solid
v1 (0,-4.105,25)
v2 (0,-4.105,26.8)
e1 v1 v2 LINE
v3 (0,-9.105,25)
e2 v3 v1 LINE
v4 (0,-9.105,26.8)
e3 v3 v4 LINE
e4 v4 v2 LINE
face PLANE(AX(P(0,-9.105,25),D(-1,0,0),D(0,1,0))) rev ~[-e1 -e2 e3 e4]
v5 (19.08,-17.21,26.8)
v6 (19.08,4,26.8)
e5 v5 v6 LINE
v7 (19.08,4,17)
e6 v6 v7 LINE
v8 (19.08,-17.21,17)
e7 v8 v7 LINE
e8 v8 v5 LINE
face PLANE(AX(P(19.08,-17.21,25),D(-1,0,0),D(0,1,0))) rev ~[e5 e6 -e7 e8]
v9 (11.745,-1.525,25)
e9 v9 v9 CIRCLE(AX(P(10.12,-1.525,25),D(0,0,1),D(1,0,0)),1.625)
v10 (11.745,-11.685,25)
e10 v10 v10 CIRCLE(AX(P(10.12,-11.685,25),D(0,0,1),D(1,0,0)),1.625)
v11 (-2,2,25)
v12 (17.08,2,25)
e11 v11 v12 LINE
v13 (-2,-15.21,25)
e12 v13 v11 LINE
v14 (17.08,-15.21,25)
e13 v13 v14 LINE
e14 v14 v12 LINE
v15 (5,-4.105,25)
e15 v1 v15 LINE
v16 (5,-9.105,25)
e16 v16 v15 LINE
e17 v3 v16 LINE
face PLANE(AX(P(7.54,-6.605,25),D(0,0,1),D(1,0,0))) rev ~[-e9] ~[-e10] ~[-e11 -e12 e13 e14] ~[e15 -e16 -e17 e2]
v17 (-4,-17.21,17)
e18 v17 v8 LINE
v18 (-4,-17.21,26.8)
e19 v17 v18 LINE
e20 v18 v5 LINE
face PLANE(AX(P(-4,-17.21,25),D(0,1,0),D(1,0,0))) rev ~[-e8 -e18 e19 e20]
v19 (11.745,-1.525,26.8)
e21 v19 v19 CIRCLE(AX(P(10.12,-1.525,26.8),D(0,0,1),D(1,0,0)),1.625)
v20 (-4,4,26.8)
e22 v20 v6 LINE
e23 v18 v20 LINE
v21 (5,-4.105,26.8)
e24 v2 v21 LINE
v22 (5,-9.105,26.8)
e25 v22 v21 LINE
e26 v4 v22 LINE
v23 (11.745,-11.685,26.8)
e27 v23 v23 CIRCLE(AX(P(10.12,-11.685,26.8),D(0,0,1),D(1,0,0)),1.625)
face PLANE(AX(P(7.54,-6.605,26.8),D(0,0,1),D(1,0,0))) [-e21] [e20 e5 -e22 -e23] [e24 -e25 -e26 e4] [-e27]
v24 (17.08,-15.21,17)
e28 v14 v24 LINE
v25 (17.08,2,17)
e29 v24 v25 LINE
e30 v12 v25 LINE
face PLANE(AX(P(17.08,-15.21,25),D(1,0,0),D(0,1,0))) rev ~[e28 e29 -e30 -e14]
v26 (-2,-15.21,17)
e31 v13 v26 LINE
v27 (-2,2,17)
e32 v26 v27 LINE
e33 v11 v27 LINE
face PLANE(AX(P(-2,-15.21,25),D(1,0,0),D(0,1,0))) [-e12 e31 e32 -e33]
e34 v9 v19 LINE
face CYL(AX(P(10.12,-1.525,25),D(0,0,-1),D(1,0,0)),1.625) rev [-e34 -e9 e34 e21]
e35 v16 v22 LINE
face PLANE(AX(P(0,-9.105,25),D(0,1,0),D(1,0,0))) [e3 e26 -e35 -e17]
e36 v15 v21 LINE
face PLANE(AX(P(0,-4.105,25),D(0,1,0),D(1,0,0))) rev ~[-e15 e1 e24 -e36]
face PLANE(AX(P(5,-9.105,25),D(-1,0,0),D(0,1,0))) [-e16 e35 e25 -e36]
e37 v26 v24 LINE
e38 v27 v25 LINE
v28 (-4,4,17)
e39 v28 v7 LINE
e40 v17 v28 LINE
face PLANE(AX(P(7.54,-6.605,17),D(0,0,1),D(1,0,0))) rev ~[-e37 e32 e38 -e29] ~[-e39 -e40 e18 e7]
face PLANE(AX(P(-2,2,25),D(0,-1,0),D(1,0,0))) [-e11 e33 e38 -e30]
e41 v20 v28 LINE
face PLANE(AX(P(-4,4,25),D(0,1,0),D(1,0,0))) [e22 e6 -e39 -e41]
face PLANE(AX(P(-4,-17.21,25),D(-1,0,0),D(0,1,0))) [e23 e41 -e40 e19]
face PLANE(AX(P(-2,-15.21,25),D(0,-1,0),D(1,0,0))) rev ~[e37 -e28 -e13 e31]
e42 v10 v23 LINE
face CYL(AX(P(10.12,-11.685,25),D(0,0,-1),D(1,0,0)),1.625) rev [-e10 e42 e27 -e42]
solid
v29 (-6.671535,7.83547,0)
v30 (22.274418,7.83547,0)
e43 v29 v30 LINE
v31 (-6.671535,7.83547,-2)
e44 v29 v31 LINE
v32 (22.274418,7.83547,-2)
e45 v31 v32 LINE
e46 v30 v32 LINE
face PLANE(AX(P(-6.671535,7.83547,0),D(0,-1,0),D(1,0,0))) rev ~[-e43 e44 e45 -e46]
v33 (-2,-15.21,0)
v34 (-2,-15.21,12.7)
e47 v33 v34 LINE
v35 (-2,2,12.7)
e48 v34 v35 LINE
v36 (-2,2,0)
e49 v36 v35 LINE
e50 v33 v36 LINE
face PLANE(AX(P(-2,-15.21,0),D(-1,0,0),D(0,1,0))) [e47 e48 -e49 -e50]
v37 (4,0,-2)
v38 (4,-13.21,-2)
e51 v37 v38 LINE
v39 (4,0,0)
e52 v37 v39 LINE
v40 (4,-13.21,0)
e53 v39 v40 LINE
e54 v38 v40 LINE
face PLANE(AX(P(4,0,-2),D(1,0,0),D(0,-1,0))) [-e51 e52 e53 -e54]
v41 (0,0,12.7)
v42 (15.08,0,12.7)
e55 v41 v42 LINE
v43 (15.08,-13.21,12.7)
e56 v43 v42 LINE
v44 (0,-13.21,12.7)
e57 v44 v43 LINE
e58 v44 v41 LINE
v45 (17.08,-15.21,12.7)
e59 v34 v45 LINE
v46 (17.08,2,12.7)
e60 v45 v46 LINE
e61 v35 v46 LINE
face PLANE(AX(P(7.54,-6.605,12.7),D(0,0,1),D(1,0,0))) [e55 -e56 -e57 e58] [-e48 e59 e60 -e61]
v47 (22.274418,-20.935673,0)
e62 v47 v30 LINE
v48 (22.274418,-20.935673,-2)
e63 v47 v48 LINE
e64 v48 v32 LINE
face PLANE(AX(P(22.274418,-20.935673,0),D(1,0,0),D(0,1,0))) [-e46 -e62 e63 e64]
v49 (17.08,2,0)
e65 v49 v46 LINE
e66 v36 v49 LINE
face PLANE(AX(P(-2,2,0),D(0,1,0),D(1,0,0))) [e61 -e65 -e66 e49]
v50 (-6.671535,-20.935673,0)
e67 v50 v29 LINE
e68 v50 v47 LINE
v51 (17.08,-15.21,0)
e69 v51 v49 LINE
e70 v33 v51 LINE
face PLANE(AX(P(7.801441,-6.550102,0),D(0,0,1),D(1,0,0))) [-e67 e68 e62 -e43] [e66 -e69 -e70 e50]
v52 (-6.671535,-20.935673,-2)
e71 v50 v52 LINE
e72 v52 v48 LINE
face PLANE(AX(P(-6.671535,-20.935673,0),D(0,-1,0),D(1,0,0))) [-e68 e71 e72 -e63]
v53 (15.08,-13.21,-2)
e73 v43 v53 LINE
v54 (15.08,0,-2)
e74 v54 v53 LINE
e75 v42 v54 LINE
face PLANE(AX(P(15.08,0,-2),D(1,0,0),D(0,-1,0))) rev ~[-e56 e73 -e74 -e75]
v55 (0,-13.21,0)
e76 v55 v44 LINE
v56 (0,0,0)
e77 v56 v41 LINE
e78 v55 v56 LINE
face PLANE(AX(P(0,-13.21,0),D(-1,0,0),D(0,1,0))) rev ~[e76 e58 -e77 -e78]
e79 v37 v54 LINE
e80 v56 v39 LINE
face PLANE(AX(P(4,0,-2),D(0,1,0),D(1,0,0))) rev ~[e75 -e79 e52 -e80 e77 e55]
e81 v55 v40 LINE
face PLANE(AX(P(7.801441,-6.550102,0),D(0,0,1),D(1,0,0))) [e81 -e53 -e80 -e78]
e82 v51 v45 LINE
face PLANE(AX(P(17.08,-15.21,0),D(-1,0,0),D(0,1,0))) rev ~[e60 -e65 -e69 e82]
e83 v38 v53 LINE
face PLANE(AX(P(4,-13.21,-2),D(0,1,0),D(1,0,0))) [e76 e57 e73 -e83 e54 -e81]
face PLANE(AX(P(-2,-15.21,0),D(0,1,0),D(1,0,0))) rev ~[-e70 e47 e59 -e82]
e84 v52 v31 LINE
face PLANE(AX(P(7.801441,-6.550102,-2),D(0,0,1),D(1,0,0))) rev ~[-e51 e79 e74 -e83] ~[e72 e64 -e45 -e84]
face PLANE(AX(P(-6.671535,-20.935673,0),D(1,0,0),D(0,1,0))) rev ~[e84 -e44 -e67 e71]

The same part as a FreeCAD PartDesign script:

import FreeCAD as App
import Part
import Sketcher

V = App.Vector


def add_polygon(sketch, points):
    """Adds a closed chain of lines whose ends are joined by coincident constraints."""
    first, n = sketch.GeometryCount, len(points)
    for a, b in zip(points, points[1:] + points[:1]):
        sketch.addGeometry(Part.LineSegment(App.Vector(*a, 0), App.Vector(*b, 0)), False)
    for i in range(n):
        sketch.addConstraint(Sketcher.Constraint("Coincident", first + i, 2, first + (i + 1) % n, 1))

doc = App.newDocument("Part")
body = doc.addObject("PartDesign::Body", "Body")

sketch1 = doc.addObject("Sketcher::SketchObject", "Sketch")
body.addObject(sketch1)
sketch1.AttachmentSupport = (doc.XY_Plane, [""])
sketch1.MapMode = "FlatFace"
add_polygon(sketch1, [(-2, 2), (-2, -15.21), (17.08, -15.21), (17.08, 2)])
add_polygon(sketch1, [(15.08, -13.21), (0, -13.21), (0, 0), (15.08, 0)])
sketch1.addConstraint([
    Sketcher.Constraint("Vertical", 0),
    Sketcher.Constraint("Horizontal", 1),
    Sketcher.Constraint("Vertical", 2),
    Sketcher.Constraint("Horizontal", 3),
    Sketcher.Constraint("Horizontal", 4),
    Sketcher.Constraint("Vertical", 5),
    Sketcher.Constraint("Horizontal", 6),
    Sketcher.Constraint("Vertical", 7),
    Sketcher.Constraint("Coincident", 5, 2, -1, 1),
    Sketcher.Constraint("DistanceX", 0, 2, -1, 1, 2.0),
    Sketcher.Constraint("DistanceY", -1, 1, 2, 2, 2.0),
    Sketcher.Constraint("DistanceY", 0, 2, 4, 2, 2.0),
    Sketcher.Constraint("DistanceX", 6, 2, 2, 2, 2.0),
    Sketcher.Constraint("DistanceX", 1, 1, 1, 2, 19.08),
    Sketcher.Constraint("DistanceY", 0, 2, 0, 1, 17.21),
])
pad1 = doc.addObject("PartDesign::Pad", "Pad")
body.addObject(pad1)
pad1.Profile = sketch1
pad1.Length = 12.7

sketch2 = doc.addObject("Sketcher::SketchObject", "Sketch001")
body.addObject(sketch2)
sketch2.AttachmentSupport = (doc.XY_Plane, [""])
sketch2.MapMode = "FlatFace"
add_polygon(sketch2, [(-6.671535, 7.83547), (-6.671535, -20.935673), (22.274418, -20.935673), (22.274418, 7.83547)])
sketch2.addConstraint([
    Sketcher.Constraint("Vertical", 0),
    Sketcher.Constraint("Horizontal", 1),
    Sketcher.Constraint("Vertical", 2),
    Sketcher.Constraint("Horizontal", 3),
    Sketcher.Constraint("DistanceX", 1, 1, 1, 2, 28.945953),
    Sketcher.Constraint("DistanceY", 0, 2, 0, 1, 28.771143),
    Sketcher.Constraint("DistanceY", -1, 1, 2, 2, 7.83547),
    Sketcher.Constraint("DistanceX", 0, 2, -1, 1, 6.671535),
])
pad2 = doc.addObject("PartDesign::Pad", "Pad001")
body.addObject(pad2)
pad2.Profile = sketch2
pad2.Length = 2
pad2.Reversed = True

sketch3 = doc.addObject("Sketcher::SketchObject", "Sketch002")
body.addObject(sketch3)
sketch3.AttachmentSupport = (doc.XY_Plane, [""])
sketch3.MapMode = "FlatFace"
sketch3.AttachmentOffset = App.Placement(V(0, 0, -2), App.Rotation())
add_polygon(sketch3, [(4, -13.21), (4, 0), (15.08, 0), (15.08, -13.21)])
sketch3.addConstraint([
    Sketcher.Constraint("Vertical", 0),
    Sketcher.Constraint("Horizontal", 1),
    Sketcher.Constraint("Vertical", 2),
    Sketcher.Constraint("Horizontal", 3),
    Sketcher.Constraint("PointOnObject", 0, 2, -1),
    Sketcher.Constraint("DistanceX", -1, 1, 0, 2, 4.0),
    Sketcher.Constraint("DistanceX", 1, 1, 1, 2, 11.08),
    Sketcher.Constraint("DistanceY", 0, 1, 0, 2, 13.21),
])
pocket1 = doc.addObject("PartDesign::Pocket", "Pocket")
body.addObject(pocket1)
pocket1.Profile = sketch3
pocket1.Type = "ThroughAll"
pocket1.Reversed = True
body2 = doc.addObject("PartDesign::Body", "Body001")

sketch4 = doc.addObject("Sketcher::SketchObject", "Sketch003")
body2.addObject(sketch4)
sketch4.AttachmentSupport = (doc.getObject("XY_Plane001"), [""])
sketch4.MapMode = "FlatFace"
sketch4.AttachmentOffset = App.Placement(V(0, 0, 25), App.Rotation())
add_polygon(sketch4, [(-4, 4), (-4, -17.21), (19.08, -17.21), (19.08, 4)])
add_polygon(sketch4, [(17.08, -15.21), (-2, -15.21), (-2, 2), (17.08, 2)])
sketch4.addConstraint([
    Sketcher.Constraint("Vertical", 0),
    Sketcher.Constraint("Horizontal", 1),
    Sketcher.Constraint("Vertical", 2),
    Sketcher.Constraint("Horizontal", 3),
    Sketcher.Constraint("Horizontal", 4),
    Sketcher.Constraint("Vertical", 5),
    Sketcher.Constraint("Horizontal", 6),
    Sketcher.Constraint("Vertical", 7),
    Sketcher.Constraint("DistanceX", 0, 2, -1, 1, 4.0),
    Sketcher.Constraint("DistanceY", -1, 1, 2, 2, 4.0),
    Sketcher.Constraint("DistanceX", 4, 2, -1, 1, 2.0),
    Sketcher.Constraint("DistanceY", -1, 1, 5, 2, 2.0),
    Sketcher.Constraint("DistanceY", 0, 2, 4, 2, 2.0),
    Sketcher.Constraint("DistanceX", 6, 2, 2, 2, 2.0),
    Sketcher.Constraint("DistanceX", 1, 1, 1, 2, 23.08),
    Sketcher.Constraint("DistanceY", 0, 2, 0, 1, 21.21),
])
pad3 = doc.addObject("PartDesign::Pad", "Pad002")
body2.addObject(pad3)
pad3.Profile = sketch4
pad3.Length = 8
pad3.Reversed = True

sketch5 = doc.addObject("Sketcher::SketchObject", "Sketch004")
body2.addObject(sketch5)
sketch5.AttachmentSupport = (doc.getObject("XY_Plane001"), [""])
sketch5.MapMode = "FlatFace"
sketch5.AttachmentOffset = App.Placement(V(0, 0, 25), App.Rotation())
add_polygon(sketch5, [(-4, 4), (-4, -17.21), (19.08, -17.21), (19.08, 4)])
sketch5.addConstraint([
    Sketcher.Constraint("Vertical", 0),
    Sketcher.Constraint("Horizontal", 1),
    Sketcher.Constraint("Vertical", 2),
    Sketcher.Constraint("Horizontal", 3),
    Sketcher.Constraint("DistanceX", 0, 2, -1, 1, 4.0),
    Sketcher.Constraint("DistanceY", -1, 1, 2, 2, 4.0),
    Sketcher.Constraint("DistanceX", 1, 1, 1, 2, 23.08),
    Sketcher.Constraint("DistanceY", 0, 2, 0, 1, 21.21),
])
pad4 = doc.addObject("PartDesign::Pad", "Pad003")
body2.addObject(pad4)
pad4.Profile = sketch5
pad4.Length = 1.8

sketch6 = doc.addObject("Sketcher::SketchObject", "Sketch005")
body2.addObject(sketch6)
sketch6.AttachmentSupport = (doc.getObject("XY_Plane001"), [""])
sketch6.MapMode = "FlatFace"
sketch6.AttachmentOffset = App.Placement(V(0, 0, 25), App.Rotation())
add_polygon(sketch6, [(0, -4.105), (0, -9.105), (5, -9.105), (5, -4.105)])
sketch6.addGeometry(Part.Circle(V(10.12, -11.685, 0), V(0, 0, 1), 1.625), False)
sketch6.addGeometry(Part.Circle(V(10.12, -1.525, 0), V(0, 0, 1), 1.625), False)
sketch6.addConstraint([
    Sketcher.Constraint("Vertical", 0),
    Sketcher.Constraint("Horizontal", 1),
    Sketcher.Constraint("Vertical", 2),
    Sketcher.Constraint("Horizontal", 3),
    Sketcher.Constraint("Equal", 4, 5),
    Sketcher.Constraint("PointOnObject", 0, 2, -2),
    Sketcher.Constraint("Vertical", 4, 3, 5, 3),
    Sketcher.Constraint("Equal", 3, 0),
    Sketcher.Constraint("Diameter", 4, 3.25),
    Sketcher.Constraint("DistanceX", 1, 1, 1, 2, 5.0),
    Sketcher.Constraint("DistanceX", -1, 1, 4, 3, 10.12),
    Sketcher.Constraint("DistanceY", 4, 3, 5, 3, 10.16),
    Sketcher.Constraint("DistanceY", 4, 3, 0, 2, 2.58),
    Sketcher.Constraint("DistanceY", 4, 3, -1, 1, 11.685),
])
pocket2 = doc.addObject("PartDesign::Pocket", "Pocket001")
body2.addObject(pocket2)
pocket2.Profile = sketch6
pocket2.Type = "ThroughAll"
pocket2.Reversed = True

doc.recompute()
